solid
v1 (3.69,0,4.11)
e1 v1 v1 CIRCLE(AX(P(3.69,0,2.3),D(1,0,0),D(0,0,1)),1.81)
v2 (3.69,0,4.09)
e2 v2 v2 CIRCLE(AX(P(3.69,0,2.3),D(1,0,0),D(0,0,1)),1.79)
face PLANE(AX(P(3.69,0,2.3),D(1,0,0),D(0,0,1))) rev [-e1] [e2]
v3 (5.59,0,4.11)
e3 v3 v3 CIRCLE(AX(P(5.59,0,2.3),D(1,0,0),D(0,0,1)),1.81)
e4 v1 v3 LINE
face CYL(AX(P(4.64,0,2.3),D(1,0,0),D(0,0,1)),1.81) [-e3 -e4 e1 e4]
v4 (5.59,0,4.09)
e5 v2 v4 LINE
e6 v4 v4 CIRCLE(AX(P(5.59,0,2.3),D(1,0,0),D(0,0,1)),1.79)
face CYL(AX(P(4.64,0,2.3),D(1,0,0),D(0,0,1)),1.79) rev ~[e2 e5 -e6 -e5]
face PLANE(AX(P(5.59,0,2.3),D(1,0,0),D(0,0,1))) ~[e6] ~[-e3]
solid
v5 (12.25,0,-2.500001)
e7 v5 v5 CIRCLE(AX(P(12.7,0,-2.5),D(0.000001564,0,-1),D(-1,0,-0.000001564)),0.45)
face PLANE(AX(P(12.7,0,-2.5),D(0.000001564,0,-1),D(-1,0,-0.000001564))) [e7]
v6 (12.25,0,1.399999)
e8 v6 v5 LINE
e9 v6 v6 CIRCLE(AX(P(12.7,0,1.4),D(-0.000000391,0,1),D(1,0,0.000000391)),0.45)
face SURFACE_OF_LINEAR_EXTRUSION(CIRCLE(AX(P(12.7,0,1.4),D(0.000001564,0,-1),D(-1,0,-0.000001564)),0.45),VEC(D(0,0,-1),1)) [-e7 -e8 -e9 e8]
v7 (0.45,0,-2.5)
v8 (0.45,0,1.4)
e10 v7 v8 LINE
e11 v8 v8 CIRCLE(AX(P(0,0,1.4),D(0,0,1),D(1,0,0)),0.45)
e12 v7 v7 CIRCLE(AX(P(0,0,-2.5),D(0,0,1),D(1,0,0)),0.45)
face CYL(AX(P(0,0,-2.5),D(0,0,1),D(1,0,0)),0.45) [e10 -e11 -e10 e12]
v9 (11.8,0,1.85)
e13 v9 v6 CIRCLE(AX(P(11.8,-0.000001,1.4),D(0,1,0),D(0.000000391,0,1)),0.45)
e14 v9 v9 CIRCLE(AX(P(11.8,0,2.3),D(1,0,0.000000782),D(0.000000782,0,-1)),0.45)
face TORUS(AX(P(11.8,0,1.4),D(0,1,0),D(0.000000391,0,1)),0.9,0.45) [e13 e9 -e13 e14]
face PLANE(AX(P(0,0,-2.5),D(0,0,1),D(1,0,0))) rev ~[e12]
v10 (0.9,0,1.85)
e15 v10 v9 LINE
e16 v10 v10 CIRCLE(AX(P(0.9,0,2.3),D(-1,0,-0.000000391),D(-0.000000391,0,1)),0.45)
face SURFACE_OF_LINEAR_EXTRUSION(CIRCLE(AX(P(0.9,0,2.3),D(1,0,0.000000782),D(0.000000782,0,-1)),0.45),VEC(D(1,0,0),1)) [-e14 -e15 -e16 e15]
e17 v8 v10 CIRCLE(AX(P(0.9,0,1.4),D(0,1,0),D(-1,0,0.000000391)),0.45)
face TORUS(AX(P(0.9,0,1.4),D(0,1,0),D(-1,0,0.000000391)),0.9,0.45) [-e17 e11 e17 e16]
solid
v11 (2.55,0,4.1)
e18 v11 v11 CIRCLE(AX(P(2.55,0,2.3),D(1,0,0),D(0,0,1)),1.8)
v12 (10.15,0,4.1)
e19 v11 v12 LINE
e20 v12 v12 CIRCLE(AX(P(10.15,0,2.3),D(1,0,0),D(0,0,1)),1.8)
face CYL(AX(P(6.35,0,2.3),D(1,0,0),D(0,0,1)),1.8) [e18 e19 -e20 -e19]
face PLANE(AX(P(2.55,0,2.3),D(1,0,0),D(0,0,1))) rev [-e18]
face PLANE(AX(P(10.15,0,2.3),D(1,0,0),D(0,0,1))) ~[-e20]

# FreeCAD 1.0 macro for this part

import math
import FreeCAD as App
import Part
import Sketcher

V = App.Vector


def add_polygon(sketch, points):
    """Adds a closed chain of lines whose ends are joined by coincident constraints."""
    first, n = sketch.GeometryCount, len(points)
    for a, b in zip(points, points[1:] + points[:1]):
        sketch.addGeometry(Part.LineSegment(App.Vector(*a, 0), App.Vector(*b, 0)), False)
    for i in range(n):
        sketch.addConstraint(Sketcher.Constraint("Coincident", first + i, 2, first + (i + 1) % n, 1))

doc = App.newDocument("Part")
body = doc.addObject("PartDesign::Body", "Body")

sketch1 = doc.addObject("Sketcher::SketchObject", "Sketch")
body.addObject(sketch1)
sketch1.AttachmentSupport = (doc.XZ_Plane, [""])
sketch1.MapMode = "FlatFace"
add_polygon(sketch1, [(2.5, 4.1), (2.5, 2.3), (10.2, 2.3), (10.2, 4.1)])
sketch1.addGeometry(Part.LineSegment(V(2.5, 2.3, 0), V(10.2, 2.3, 0)), True)
sketch1.addConstraint([
    Sketcher.Constraint("Vertical", 0),
    Sketcher.Constraint("Horizontal", 1),
    Sketcher.Constraint("Vertical", 2),
    Sketcher.Constraint("Horizontal", 3),
    Sketcher.Constraint("Horizontal", 4),
    Sketcher.Constraint("Coincident", 4, 1, 0, 2),
    Sketcher.Constraint("Vertical", 2, 2, 4, 2),
    Sketcher.Constraint("DistanceX", 1, 1, 1, 2, 7.6),
    Sketcher.Constraint("DistanceY", 0, 2, 0, 1, 1.8),
    Sketcher.Constraint("DistanceY", -1, 1, 0, 2, 2.3),
    Sketcher.Constraint("DistanceX", -1, 1, 0, 2, 2.55),
])
revolution = doc.addObject("PartDesign::Revolution", "Revolution")
body.addObject(revolution)
revolution.Profile = sketch1
revolution.ReferenceAxis = (sketch1, ["Axis0"])
revolution.Angle = 360
body2 = doc.addObject("PartDesign::Body", "Body001")

sketch2 = doc.addObject("Sketcher::SketchObject", "Sketch001")
body2.addObject(sketch2)
sketch2.AttachmentSupport = (doc.getObject("XZ_Plane001"), [""])
sketch2.MapMode = "FlatFace"
add_polygon(sketch2, [(3.69, 4.11), (3.69, 4.09), (5.59, 4.09), (5.59, 4.11)])
sketch2.addGeometry(Part.LineSegment(V(3.69, 2.3, 0), V(5.59, 2.3, 0)), True)
sketch2.addConstraint([
    Sketcher.Constraint("Vertical", 0),
    Sketcher.Constraint("Horizontal", 1),
    Sketcher.Constraint("Vertical", 2),
    Sketcher.Constraint("Horizontal", 3),
    Sketcher.Constraint("Horizontal", 4),
    Sketcher.Constraint("Vertical", 3, 2, 4, 1),
    Sketcher.Constraint("Vertical", 2, 2, 4, 2),
    Sketcher.Constraint("DistanceX", 1, 1, 1, 2, 1.9),
    Sketcher.Constraint("DistanceY", 0, 2, 0, 1, 0.02),
    Sketcher.Constraint("DistanceY", -1, 1, 4, 1, 2.3),
    Sketcher.Constraint("DistanceX", -1, 1, 0, 2, 3.69),
    Sketcher.Constraint("DistanceY", -1, 1, 0, 2, 4.09),
])
revolution2 = doc.addObject("PartDesign::Revolution", "Revolution001")
body2.addObject(revolution2)
revolution2.Profile = sketch2
revolution2.ReferenceAxis = (sketch2, ["Axis0"])
revolution2.Angle = 360
body3 = doc.addObject("PartDesign::Body", "Body002")

sketch3 = doc.addObject("Sketcher::SketchObject", "Sketch002")
body3.addObject(sketch3)
sketch3.AttachmentSupport = (doc.getObject("XY_Plane002"), [""])
sketch3.MapMode = "FlatFace"
sketch3.AttachmentOffset = App.Placement(V(0, 0, -2), App.Rotation())
sketch3.addGeometry(Part.Circle(V(0, 0, 0), V(0, 0, 1), 0.45), False)
sketch3.addConstraint([
    Sketcher.Constraint("Coincident", 0, 3, -1, 1),
    Sketcher.Constraint("Diameter", 0, 0.9),
])

sketch4 = doc.addObject("Sketcher::SketchObject", "Sketch003")
body3.addObject(sketch4)
sketch4.AttachmentSupport = (doc.getObject("XZ_Plane002"), [""])
sketch4.MapMode = "FlatFace"
sketch4.addGeometry([
    Part.LineSegment(V(0, -2.5, 0), V(0, 1.4, 0)),
    Part.ArcOfCircle(Part.Circle(V(0.9, 1.4, 0), V(0, 0, 1), 0.9), math.radians(90), math.radians(180)),
    Part.LineSegment(V(0.9, 2.3, 0), V(11.8, 2.3, 0)),
    Part.ArcOfCircle(Part.Circle(V(11.8, 1.4, 0), V(0, 0, 1), 0.9), math.radians(0), math.radians(90)),
    Part.LineSegment(V(12.7, 1.4, 0), V(12.7, -2.5, 0)),
], False)
sketch4.addConstraint([
    Sketcher.Constraint("Tangent", 0, 2, 1, 2),
    Sketcher.Constraint("Tangent", 1, 1, 2, 1),
    Sketcher.Constraint("Tangent", 2, 2, 3, 2),
    Sketcher.Constraint("Tangent", 3, 1, 4, 1),
    Sketcher.Constraint("Vertical", 0),
    Sketcher.Constraint("Horizontal", 2),
    Sketcher.Constraint("Vertical", 4),
    Sketcher.Constraint("Equal", 1, 3),
    Sketcher.Constraint("PointOnObject", 0, 1, -2),
    Sketcher.Constraint("Horizontal", 0, 1, 4, 2),
    Sketcher.Constraint("Radius", 1, 0.9),
    Sketcher.Constraint("DistanceX", 2, 1, 2, 2, 10.9),
    Sketcher.Constraint("DistanceY", 0, 1, 0, 2, 3.9),
    Sketcher.Constraint("DistanceY", -1, 1, 1, 3, 1.4),
])
doc.recompute()

additivepipe = doc.addObject("PartDesign::AdditivePipe", "AdditivePipe")
body3.addObject(additivepipe)
additivepipe.Profile = sketch3
additivepipe.Spine = (sketch4, ["Edge1", "Edge2", "Edge3", "Edge4", "Edge5"])

doc.recompute()
